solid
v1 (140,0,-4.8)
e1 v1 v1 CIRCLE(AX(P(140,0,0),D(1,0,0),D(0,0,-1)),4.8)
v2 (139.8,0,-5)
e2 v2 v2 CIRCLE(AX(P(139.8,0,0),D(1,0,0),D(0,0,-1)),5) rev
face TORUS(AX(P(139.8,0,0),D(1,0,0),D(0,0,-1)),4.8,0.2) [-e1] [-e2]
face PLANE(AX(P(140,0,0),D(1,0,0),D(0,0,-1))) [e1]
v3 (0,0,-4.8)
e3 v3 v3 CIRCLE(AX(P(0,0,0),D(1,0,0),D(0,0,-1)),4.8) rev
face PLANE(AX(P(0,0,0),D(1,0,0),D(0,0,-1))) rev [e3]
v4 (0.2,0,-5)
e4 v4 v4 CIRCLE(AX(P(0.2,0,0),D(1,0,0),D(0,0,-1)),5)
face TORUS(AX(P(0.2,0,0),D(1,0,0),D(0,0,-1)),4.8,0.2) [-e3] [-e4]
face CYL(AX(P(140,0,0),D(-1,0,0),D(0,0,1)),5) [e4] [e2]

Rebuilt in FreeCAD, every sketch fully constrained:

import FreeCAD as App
import Part
import Sketcher


def edges_at(feature, points):
    """Names of the edges that pass closest to the given points."""
    edges = feature.Shape.Edges
    near = lambda p: min(range(len(edges)), key=lambda i: edges[i].distToShape(Part.Vertex(*p))[0])
    return sorted({f"Edge{near(p) + 1}" for p in points})

doc = App.newDocument("Part")
body = doc.addObject("PartDesign::Body", "Body")

# Sketch on YZ plane
sketch1 = body.newObject("Sketcher::SketchObject", "Sketch")
sketch1.AttachmentSupport = (doc.getObject("YZ_Plane"), [""])
sketch1.MapMode = "FlatFace"
sketch1.addGeometry(Part.Circle(App.Vector(0, 0, 0), App.Vector(0, 0, 1), 5), False)
sketch1.addConstraint([
    Sketcher.Constraint("Coincident", 0, 3, -1, 1),
    Sketcher.Constraint("Diameter", 0, 10.0),
])
pad1 = body.newObject("PartDesign::Pad", "Pad")
pad1.Profile = sketch1
pad1.Length = 140
doc.recompute()

fillet = body.newObject("PartDesign::Fillet", "Fillet")
fillet.Base = (pad1, edges_at(pad1, [(0, 0, 5), (140, 0, 5)]))
fillet.Radius = 0.2

doc.recompute()
